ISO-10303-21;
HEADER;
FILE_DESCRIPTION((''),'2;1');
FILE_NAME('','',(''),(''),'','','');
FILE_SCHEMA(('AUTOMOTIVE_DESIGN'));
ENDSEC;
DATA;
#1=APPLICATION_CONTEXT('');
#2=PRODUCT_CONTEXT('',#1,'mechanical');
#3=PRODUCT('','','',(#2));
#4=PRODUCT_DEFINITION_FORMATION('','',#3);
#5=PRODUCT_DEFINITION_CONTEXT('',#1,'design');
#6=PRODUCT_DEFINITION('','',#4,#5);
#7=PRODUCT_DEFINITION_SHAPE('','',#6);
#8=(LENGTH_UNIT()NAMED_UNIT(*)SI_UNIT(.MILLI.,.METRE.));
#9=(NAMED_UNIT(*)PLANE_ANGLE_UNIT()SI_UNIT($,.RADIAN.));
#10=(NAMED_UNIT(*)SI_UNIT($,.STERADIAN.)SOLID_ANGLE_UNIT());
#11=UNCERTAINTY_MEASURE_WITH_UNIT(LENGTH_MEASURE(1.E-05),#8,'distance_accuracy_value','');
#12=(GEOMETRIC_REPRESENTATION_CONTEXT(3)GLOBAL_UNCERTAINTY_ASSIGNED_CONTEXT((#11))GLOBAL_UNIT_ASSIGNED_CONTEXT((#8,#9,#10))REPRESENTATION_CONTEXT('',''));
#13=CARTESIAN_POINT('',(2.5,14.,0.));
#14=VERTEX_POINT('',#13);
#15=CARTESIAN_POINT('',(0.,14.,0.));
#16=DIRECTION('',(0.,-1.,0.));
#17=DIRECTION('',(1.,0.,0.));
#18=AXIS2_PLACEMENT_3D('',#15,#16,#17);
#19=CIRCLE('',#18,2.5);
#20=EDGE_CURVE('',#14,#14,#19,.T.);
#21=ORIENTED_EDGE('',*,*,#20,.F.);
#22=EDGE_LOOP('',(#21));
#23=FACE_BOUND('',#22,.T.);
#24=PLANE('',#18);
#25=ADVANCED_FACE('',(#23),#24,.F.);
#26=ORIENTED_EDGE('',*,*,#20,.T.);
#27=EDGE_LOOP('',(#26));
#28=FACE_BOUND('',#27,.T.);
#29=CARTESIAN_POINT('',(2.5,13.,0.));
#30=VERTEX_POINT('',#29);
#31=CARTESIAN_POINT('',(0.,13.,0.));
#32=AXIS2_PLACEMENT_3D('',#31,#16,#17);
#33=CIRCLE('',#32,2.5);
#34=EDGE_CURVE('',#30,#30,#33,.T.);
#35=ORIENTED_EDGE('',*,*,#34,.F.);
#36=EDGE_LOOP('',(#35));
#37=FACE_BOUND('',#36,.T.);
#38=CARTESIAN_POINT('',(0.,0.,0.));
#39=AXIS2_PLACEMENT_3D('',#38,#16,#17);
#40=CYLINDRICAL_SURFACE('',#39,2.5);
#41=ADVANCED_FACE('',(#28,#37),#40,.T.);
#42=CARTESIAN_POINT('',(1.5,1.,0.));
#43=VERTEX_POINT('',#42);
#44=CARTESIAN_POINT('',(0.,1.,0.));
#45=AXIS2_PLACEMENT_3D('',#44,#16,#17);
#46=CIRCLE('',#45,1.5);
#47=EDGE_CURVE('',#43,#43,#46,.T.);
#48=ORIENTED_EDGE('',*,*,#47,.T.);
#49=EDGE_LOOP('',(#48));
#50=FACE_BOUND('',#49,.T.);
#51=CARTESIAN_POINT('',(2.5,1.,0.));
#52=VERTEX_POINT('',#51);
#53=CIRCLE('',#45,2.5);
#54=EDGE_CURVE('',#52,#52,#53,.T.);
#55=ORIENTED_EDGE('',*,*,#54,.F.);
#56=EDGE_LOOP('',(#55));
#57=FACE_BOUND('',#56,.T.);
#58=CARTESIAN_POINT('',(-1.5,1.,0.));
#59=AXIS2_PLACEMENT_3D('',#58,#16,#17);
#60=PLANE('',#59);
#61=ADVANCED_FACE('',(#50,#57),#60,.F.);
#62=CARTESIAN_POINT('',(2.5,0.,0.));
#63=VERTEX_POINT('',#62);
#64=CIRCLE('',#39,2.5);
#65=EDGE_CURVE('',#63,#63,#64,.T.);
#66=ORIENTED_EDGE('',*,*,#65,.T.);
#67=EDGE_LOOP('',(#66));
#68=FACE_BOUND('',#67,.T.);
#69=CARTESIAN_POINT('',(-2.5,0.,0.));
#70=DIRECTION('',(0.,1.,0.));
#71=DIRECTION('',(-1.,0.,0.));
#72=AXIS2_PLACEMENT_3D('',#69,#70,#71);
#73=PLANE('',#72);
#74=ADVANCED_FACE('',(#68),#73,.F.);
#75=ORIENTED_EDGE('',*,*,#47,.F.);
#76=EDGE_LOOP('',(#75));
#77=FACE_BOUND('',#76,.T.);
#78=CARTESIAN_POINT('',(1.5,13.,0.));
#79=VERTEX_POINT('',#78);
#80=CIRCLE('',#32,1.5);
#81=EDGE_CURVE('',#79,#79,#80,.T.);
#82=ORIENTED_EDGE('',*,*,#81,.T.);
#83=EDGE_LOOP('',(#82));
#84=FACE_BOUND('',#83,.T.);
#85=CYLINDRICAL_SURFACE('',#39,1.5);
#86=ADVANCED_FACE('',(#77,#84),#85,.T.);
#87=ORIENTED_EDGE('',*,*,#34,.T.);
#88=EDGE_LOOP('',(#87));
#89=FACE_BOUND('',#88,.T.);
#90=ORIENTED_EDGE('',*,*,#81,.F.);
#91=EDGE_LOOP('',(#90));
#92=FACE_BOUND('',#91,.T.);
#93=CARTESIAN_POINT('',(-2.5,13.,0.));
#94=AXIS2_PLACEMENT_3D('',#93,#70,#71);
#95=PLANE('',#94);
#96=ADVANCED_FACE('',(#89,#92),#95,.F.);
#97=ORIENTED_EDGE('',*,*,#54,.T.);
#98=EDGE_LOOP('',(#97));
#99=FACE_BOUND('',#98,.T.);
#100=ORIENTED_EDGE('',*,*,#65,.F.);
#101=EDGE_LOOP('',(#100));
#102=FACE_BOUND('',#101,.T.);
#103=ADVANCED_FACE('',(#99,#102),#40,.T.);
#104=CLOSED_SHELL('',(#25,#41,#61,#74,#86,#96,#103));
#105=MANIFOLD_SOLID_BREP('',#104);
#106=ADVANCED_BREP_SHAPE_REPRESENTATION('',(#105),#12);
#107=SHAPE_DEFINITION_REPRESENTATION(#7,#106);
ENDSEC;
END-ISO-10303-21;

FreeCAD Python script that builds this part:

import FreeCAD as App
import Part
import Sketcher

V = App.Vector
Q = App.Units.Quantity

doc = App.newDocument("Part")
params = doc.addObject("Spreadsheet::Sheet", "Params")
for row, (alias, value) in enumerate([
    ("sketch1_width", "1 mm"),
    ("sketch1_height", "14 mm"),
    ("sketch1_width2", "2.5 mm"),
    ("revolution_angle", "360 deg"),
], start=1):
    params.set(f"A{row}", alias)
    params.set(f"B{row}", "=" + value)
    params.setAlias(f"B{row}", alias)

body = doc.addObject("PartDesign::Body", "Body")

sketch1 = body.newObject("Sketcher::SketchObject", "Sketch")
sketch1.AttachmentSupport = (doc.getObject("XY_Plane"), [""])
sketch1.MapMode = "FlatFace"
sketch1.addGeometry([
    Part.LineSegment(V(0, 0, 0), V(0, 14, 0)),
    Part.LineSegment(V(0, 14, 0), V(-2.5, 14, 0)),
    Part.LineSegment(V(-2.5, 14, 0), V(-2.5, 13, 0)),
    Part.LineSegment(V(-2.5, 13, 0), V(-1.5, 13, 0)),
    Part.LineSegment(V(-1.5, 13, 0), V(-1.5, 1, 0)),
    Part.LineSegment(V(-1.5, 1, 0), V(-2.5, 1, 0)),
    Part.LineSegment(V(-2.5, 1, 0), V(-2.5, 0, 0)),
    Part.LineSegment(V(-2.5, 0, 0), V(0, 0, 0)),
], False)
sketch1.addConstraint([
    Sketcher.Constraint("Coincident", 0, 2, 1, 1),
    Sketcher.Constraint("Coincident", 1, 2, 2, 1),
    Sketcher.Constraint("Coincident", 2, 2, 3, 1),
    Sketcher.Constraint("Coincident", 3, 2, 4, 1),
    Sketcher.Constraint("Coincident", 4, 2, 5, 1),
    Sketcher.Constraint("Coincident", 5, 2, 6, 1),
    Sketcher.Constraint("Coincident", 6, 2, 7, 1),
    Sketcher.Constraint("Coincident", 7, 2, 0, 1),
    Sketcher.Constraint("Vertical", 0),
    Sketcher.Constraint("Horizontal", 1),
    Sketcher.Constraint("Vertical", 2),
    Sketcher.Constraint("Horizontal", 3),
    Sketcher.Constraint("Vertical", 4),
    Sketcher.Constraint("Horizontal", 5),
    Sketcher.Constraint("Vertical", 6),
    Sketcher.Constraint("Horizontal", 7),
    Sketcher.Constraint("Coincident", 7, 2, -1, 1),
    Sketcher.Constraint("Vertical", 2, 2, 5, 2),
    Sketcher.Constraint("Equal", 5, 2),
    Sketcher.Constraint("Equal", 2, 6),
    Sketcher.Constraint("DistanceX", 3, 1, 3, 2, Q("1 mm")),
    Sketcher.Constraint("DistanceY", 0, 1, 0, 2, Q("14 mm")),
    Sketcher.Constraint("DistanceX", 1, 2, 1, 1, Q("2.5 mm")),
])
sketch1.setExpression("Constraints[20]", "Params.sketch1_width")
sketch1.setExpression("Constraints[21]", "Params.sketch1_height")
sketch1.setExpression("Constraints[22]", "Params.sketch1_width2")
revolution = body.newObject("PartDesign::Revolution", "Revolution")
revolution.Profile = sketch1
revolution.ReferenceAxis = (sketch1, ["V_Axis"])
revolution.setExpression("Angle", "Params.revolution_angle")

doc.recompute()
